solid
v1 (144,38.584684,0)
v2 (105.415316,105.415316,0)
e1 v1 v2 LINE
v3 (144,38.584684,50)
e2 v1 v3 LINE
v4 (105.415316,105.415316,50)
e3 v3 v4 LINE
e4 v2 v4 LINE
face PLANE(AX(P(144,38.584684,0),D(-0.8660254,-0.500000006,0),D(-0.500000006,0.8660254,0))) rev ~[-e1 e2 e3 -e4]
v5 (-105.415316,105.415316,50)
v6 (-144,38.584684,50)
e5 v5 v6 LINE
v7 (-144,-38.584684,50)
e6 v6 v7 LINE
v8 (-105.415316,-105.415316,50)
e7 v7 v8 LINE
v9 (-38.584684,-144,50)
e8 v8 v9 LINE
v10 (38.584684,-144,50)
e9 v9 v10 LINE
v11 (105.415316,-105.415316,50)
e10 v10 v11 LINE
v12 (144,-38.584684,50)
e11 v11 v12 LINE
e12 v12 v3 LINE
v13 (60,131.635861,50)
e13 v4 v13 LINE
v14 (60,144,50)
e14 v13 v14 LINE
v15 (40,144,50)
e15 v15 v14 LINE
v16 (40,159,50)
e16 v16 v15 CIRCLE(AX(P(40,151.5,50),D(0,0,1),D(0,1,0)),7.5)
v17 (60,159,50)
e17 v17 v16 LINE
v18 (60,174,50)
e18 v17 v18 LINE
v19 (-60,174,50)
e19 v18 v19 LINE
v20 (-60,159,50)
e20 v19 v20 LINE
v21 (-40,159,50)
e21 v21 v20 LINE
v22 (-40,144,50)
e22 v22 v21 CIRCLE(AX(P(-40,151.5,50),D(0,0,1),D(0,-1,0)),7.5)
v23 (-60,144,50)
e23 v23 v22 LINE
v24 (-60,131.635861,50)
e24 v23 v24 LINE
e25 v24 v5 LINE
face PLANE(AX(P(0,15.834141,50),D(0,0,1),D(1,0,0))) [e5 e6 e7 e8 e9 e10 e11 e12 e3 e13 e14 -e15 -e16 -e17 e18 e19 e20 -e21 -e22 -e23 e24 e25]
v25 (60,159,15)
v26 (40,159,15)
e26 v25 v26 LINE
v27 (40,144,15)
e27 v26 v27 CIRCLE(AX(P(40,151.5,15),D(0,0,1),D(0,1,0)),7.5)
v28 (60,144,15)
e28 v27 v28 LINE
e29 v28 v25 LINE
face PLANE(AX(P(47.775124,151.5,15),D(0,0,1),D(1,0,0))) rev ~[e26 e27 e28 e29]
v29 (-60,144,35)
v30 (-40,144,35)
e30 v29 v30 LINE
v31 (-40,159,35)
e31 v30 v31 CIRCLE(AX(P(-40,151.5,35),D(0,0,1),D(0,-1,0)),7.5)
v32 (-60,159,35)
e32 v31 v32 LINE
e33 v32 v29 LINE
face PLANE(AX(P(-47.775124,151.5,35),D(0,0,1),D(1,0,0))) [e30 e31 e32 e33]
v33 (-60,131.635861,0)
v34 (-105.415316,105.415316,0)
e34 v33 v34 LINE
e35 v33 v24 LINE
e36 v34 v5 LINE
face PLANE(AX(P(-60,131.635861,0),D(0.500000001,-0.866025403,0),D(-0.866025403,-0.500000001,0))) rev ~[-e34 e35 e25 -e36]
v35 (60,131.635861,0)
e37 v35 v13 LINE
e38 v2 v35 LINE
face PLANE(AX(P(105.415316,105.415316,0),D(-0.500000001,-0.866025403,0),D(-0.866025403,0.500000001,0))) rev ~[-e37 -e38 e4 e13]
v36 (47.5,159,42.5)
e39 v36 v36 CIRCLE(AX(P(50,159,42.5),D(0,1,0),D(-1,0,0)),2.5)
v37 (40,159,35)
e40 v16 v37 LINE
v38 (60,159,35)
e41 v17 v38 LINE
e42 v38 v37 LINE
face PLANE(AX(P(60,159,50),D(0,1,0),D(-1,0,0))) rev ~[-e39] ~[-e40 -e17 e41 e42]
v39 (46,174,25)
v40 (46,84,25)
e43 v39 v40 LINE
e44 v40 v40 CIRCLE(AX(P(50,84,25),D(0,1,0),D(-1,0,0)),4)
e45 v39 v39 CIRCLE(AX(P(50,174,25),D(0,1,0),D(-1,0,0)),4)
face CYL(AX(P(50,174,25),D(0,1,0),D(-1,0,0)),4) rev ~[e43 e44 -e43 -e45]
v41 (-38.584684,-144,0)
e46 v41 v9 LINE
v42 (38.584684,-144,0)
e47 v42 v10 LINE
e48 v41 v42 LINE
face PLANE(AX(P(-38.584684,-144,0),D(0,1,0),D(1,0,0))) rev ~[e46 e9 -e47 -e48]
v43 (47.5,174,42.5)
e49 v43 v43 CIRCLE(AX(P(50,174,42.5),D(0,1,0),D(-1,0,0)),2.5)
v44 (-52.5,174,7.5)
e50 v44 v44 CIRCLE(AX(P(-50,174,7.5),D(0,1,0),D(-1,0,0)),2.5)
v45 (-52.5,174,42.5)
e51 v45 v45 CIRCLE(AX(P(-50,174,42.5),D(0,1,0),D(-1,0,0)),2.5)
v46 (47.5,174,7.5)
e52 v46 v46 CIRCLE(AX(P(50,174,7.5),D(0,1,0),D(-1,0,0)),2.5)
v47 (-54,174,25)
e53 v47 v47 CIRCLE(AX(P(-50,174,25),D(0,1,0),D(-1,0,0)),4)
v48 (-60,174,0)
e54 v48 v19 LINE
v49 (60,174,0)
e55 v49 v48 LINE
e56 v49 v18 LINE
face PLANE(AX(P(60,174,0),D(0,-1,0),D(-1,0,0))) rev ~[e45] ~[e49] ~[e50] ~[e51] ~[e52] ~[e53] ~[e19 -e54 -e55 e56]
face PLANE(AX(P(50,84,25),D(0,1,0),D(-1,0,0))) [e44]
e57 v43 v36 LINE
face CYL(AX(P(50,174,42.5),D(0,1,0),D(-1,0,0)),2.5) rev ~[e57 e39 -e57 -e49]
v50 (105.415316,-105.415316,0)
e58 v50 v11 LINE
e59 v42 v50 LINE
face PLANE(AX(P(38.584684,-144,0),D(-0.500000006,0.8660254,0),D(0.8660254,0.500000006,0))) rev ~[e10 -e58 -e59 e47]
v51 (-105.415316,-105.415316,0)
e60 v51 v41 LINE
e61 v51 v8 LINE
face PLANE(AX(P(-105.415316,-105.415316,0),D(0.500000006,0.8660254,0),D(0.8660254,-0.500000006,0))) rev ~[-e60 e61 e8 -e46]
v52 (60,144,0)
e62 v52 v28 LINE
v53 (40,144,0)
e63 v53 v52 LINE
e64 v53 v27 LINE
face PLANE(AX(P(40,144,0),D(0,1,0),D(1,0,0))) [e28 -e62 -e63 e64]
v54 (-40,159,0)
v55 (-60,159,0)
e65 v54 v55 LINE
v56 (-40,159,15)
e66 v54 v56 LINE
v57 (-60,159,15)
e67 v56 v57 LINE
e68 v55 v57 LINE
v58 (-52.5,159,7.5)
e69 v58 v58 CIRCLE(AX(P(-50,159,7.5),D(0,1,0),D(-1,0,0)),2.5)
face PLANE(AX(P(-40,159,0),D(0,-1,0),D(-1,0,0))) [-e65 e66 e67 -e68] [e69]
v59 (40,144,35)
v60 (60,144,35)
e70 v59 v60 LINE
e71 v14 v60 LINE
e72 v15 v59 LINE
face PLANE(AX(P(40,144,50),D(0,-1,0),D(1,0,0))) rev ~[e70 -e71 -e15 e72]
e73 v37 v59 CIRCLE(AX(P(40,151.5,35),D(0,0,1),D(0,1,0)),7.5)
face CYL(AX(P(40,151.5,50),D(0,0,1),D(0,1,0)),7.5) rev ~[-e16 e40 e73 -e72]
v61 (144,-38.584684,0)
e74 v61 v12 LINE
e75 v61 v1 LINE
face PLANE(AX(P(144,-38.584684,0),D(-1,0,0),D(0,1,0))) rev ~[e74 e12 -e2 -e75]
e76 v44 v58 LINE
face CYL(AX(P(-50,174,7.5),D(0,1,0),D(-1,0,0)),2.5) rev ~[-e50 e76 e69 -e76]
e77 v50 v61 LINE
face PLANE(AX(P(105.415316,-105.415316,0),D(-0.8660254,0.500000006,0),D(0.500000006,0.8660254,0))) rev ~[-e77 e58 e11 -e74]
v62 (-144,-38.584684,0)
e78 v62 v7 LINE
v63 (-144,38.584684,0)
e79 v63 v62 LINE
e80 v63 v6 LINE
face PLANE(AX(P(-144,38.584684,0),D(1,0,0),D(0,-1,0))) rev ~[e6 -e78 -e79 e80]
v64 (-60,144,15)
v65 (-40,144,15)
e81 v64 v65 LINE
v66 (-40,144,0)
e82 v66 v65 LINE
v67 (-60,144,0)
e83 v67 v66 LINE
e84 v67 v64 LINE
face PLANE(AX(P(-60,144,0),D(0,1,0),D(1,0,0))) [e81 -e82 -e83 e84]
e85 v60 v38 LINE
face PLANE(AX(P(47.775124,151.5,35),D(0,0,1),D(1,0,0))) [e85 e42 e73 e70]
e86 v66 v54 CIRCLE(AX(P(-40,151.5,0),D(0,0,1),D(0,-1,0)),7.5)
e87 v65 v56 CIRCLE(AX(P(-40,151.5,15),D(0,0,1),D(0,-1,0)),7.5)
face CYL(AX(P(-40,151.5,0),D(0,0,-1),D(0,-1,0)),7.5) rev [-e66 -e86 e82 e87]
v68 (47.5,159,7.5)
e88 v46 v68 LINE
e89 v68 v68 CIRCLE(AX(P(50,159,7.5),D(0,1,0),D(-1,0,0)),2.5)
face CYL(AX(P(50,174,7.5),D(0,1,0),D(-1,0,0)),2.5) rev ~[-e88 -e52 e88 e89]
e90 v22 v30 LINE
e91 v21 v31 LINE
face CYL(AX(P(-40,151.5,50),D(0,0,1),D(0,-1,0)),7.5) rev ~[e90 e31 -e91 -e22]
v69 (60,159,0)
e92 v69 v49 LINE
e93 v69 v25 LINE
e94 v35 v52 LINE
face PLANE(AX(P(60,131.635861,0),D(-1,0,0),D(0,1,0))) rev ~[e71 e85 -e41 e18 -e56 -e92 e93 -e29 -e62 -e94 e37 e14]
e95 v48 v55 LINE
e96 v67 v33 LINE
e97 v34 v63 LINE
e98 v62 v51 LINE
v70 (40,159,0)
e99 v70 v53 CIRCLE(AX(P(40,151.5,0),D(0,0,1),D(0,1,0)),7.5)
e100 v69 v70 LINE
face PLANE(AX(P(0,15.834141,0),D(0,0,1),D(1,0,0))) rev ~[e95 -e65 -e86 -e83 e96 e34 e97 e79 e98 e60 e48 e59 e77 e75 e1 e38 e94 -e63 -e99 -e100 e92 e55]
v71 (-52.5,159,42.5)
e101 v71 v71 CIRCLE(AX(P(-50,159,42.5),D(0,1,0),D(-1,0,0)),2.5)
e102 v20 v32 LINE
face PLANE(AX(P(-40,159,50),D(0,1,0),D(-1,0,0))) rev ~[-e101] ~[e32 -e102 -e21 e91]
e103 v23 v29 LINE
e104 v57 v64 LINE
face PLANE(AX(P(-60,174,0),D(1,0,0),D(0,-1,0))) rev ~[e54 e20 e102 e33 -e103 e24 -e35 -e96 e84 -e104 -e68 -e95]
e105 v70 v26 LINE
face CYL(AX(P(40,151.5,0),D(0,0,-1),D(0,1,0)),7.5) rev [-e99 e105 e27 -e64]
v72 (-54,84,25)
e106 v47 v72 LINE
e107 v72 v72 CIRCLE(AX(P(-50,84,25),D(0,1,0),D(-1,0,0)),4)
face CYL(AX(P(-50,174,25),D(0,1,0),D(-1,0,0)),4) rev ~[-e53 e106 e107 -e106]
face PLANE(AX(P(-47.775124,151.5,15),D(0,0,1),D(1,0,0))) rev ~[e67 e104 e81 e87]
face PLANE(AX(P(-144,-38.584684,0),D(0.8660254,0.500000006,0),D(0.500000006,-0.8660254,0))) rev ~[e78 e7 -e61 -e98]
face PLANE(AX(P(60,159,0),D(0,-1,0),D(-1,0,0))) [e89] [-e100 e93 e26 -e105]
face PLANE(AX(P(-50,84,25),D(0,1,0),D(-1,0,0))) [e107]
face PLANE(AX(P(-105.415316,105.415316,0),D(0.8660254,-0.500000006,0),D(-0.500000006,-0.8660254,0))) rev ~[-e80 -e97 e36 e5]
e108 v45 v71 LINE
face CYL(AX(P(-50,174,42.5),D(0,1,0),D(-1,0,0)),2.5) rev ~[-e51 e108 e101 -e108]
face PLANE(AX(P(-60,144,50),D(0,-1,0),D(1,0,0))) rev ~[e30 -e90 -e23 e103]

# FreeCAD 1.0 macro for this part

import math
import FreeCAD as App
import Part
import Sketcher

V = App.Vector
Q = App.Units.Quantity

doc = App.newDocument("Part")
params = doc.addObject("Spreadsheet::Sheet", "Params")
for row, (alias, value) in enumerate([
    ("sketch1_width", "120 mm"),
    ("pad1_length", "50 mm"),
    ("sketch2_radius", "7.5 mm"),
    ("sketch2_width", "20 mm"),
    ("pocket1_length", "15 mm"),
    ("sketch3_radius", "7.5 mm"),
    ("sketch3_width", "20 mm"),
    ("pocket2_length", "15 mm"),
    ("sketch4_diameter", "8 mm"),
    ("pocket3_length", "90 mm"),
    ("sketch5_diameter", "5 mm"),
    ("pocket4_length", "15 mm"),
], start=1):
    params.set(f"A{row}", alias)
    params.set(f"B{row}", "=" + value)
    params.setAlias(f"B{row}", alias)

body = doc.addObject("PartDesign::Body", "Body")

# Sketch on XY plane
sketch1 = body.newObject("Sketcher::SketchObject", "Sketch")
sketch1.AttachmentSupport = (doc.getObject("XY_Plane"), [""])
sketch1.MapMode = "FlatFace"
sketch1.addGeometry([
    Part.LineSegment(V(144, 39, 0), V(105, 105, 0)),  # 0
    Part.LineSegment(V(105, 105, 0), V(60, 132, 0)),  # 1
    Part.LineSegment(V(60, 132, 0), V(60, 174, 0)),  # 2
    Part.LineSegment(V(60, 174, 0), V(-60, 174, 0)),  # 3
    Part.LineSegment(V(-60, 174, 0), V(-60, 132, 0)),  # 4
    Part.LineSegment(V(-60, 132, 0), V(-105, 105, 0)),  # 5
    Part.LineSegment(V(-105, 105, 0), V(-144, 39, 0)),  # 6
    Part.LineSegment(V(-144, 39, 0), V(-144, -39, 0)),  # 7
    Part.LineSegment(V(-144, -39, 0), V(-105, -105, 0)),  # 8
    Part.LineSegment(V(-105, -105, 0), V(-39, -144, 0)),  # 9
    Part.LineSegment(V(-39, -144, 0), V(39, -144, 0)),  # 10
    Part.LineSegment(V(39, -144, 0), V(105, -105, 0)),  # 11
    Part.LineSegment(V(105, -105, 0), V(144, -39, 0)),  # 12
    Part.LineSegment(V(144, -39, 0), V(144, 39, 0)),  # 13
], False)
sketch1.addConstraint([
    Sketcher.Constraint("Coincident", 0, 2, 1, 1),
    Sketcher.Constraint("Coincident", 1, 2, 2, 1),
    Sketcher.Constraint("Coincident", 2, 2, 3, 1),
    Sketcher.Constraint("Coincident", 3, 2, 4, 1),
    Sketcher.Constraint("Coincident", 4, 2, 5, 1),
    Sketcher.Constraint("Coincident", 5, 2, 6, 1),
    Sketcher.Constraint("Coincident", 6, 2, 7, 1),
    Sketcher.Constraint("Coincident", 7, 2, 8, 1),
    Sketcher.Constraint("Coincident", 8, 2, 9, 1),
    Sketcher.Constraint("Coincident", 9, 2, 10, 1),
    Sketcher.Constraint("Coincident", 10, 2, 11, 1),
    Sketcher.Constraint("Coincident", 11, 2, 12, 1),
    Sketcher.Constraint("Coincident", 12, 2, 13, 1),
    Sketcher.Constraint("Coincident", 13, 2, 0, 1),
    Sketcher.Constraint("Vertical", 2),
    Sketcher.Constraint("Horizontal", 3),
    Sketcher.Constraint("Vertical", 4),
    Sketcher.Constraint("Vertical", 7),
    Sketcher.Constraint("Horizontal", 10),
    Sketcher.Constraint("Vertical", 13),
    Sketcher.Constraint("Symmetric", 0, 2, 8, 2, -1, 1),
    Sketcher.Constraint("Symmetric", 5, 2, 11, 2, -1, 1),
    Sketcher.Constraint("Symmetric", 6, 2, 12, 2, -1, 1),
    Sketcher.Constraint("Symmetric", 1, 2, 4, 2, -2),
    Sketcher.Constraint("Symmetric", 0, 2, 5, 2, -2),
    Sketcher.Constraint("Perpendicular", 0, 5),
    Sketcher.Constraint("Perpendicular", 1, 6),
    Sketcher.Constraint("Perpendicular", 5, 8),
    Sketcher.Constraint("Perpendicular", 6, 9),
    Sketcher.Constraint("Perpendicular", 8, 11),
    Sketcher.Constraint("Equal", 10, 7),
    Sketcher.Constraint("Equal", 8, 9),
    Sketcher.Constraint("DistanceX", 3, 2, 3, 1, Q("120 mm")),
    Sketcher.Constraint("Angle", 0, Q("120 deg")),
    Sketcher.Constraint("DistanceY", -1, 1, 2, 2, Q("174 mm")),
    Sketcher.Constraint("DistanceX", 6, 2, -1, 1, Q("144 mm")),
    Sketcher.Constraint("DistanceY", 7, 2, 5, 2, Q("144 mm")),
])
sketch1.setExpression("Constraints[32]", "Params.sketch1_width")
pad1 = body.newObject("PartDesign::Pad", "Pad")
pad1.Profile = sketch1
pad1.setExpression("Length", "Params.pad1_length")

# Sketch on XY plane
sketch2 = body.newObject("Sketcher::SketchObject", "Sketch001")
sketch2.AttachmentSupport = (doc.getObject("XY_Plane"), [""])
sketch2.MapMode = "FlatFace"
sketch2.AttachmentOffset = App.Placement(V(0, 0, 50), App.Rotation())
sketch2.addGeometry([
    Part.LineSegment(V(-40, 159, 0), V(-60, 159, 0)),  # 0
    Part.LineSegment(V(-60, 159, 0), V(-60, 144, 0)),  # 1
    Part.LineSegment(V(-60, 144, 0), V(-40, 144, 0)),  # 2
    Part.ArcOfCircle(Part.Circle(V(-40, 152, 0), V(0, 0, 1), 8), math.radians(-90), math.radians(90)),  # 3
    Part.LineSegment(V(60, 144, 0), V(60, 159, 0)),  # 4
    Part.LineSegment(V(60, 159, 0), V(40, 159, 0)),  # 5
    Part.ArcOfCircle(Part.Circle(V(40, 152, 0), V(0, 0, 1), 8), math.radians(90), math.radians(270)),  # 6
    Part.LineSegment(V(40, 144, 0), V(60, 144, 0)),  # 7
], False)
sketch2.addConstraint([
    Sketcher.Constraint("Coincident", 0, 2, 1, 1),
    Sketcher.Constraint("Coincident", 1, 2, 2, 1),
    Sketcher.Constraint("Tangent", 2, 2, 3, 1),
    Sketcher.Constraint("Tangent", 3, 2, 0, 1),
    Sketcher.Constraint("Coincident", 4, 2, 5, 1),
    Sketcher.Constraint("Tangent", 5, 2, 6, 1),
    Sketcher.Constraint("Tangent", 6, 2, 7, 1),
    Sketcher.Constraint("Coincident", 7, 2, 4, 1),
    Sketcher.Constraint("Horizontal", 0),
    Sketcher.Constraint("Vertical", 1),
    Sketcher.Constraint("Horizontal", 2),
    Sketcher.Constraint("Vertical", 4),
    Sketcher.Constraint("Horizontal", 5),
    Sketcher.Constraint("Horizontal", 7),
    Sketcher.Constraint("Equal", 3, 6),
    Sketcher.Constraint("Symmetric", 3, 3, 6, 3, -2),
    Sketcher.Constraint("Equal", 2, 5),
    Sketcher.Constraint("Radius", 3, Q("7.5 mm")),
    Sketcher.Constraint("DistanceX", 0, 2, 0, 1, Q("20 mm")),
    Sketcher.Constraint("DistanceX", 3, 3, -1, 1, Q("40 mm")),
    Sketcher.Constraint("DistanceY", -1, 1, 0, 2, Q("159 mm")),
])
sketch2.setExpression("Constraints[17]", "Params.sketch2_radius")
sketch2.setExpression("Constraints[18]", "Params.sketch2_width")
pocket1 = body.newObject("PartDesign::Pocket", "Pocket")
pocket1.Profile = sketch2
pocket1.setExpression("Length", "Params.pocket1_length")

# Sketch on XY plane
sketch3 = body.newObject("Sketcher::SketchObject", "Sketch002")
sketch3.AttachmentSupport = (doc.getObject("XY_Plane"), [""])
sketch3.MapMode = "FlatFace"
sketch3.addGeometry([
    Part.LineSegment(V(60, 144, 0), V(60, 159, 0)),  # 0
    Part.LineSegment(V(60, 159, 0), V(40, 159, 0)),  # 1
    Part.ArcOfCircle(Part.Circle(V(40, 152, 0), V(0, 0, 1), 8), math.radians(90), math.radians(270)),  # 2
    Part.LineSegment(V(40, 144, 0), V(60, 144, 0)),  # 3
    Part.LineSegment(V(-40, 159, 0), V(-60, 159, 0)),  # 4
    Part.LineSegment(V(-60, 159, 0), V(-60, 144, 0)),  # 5
    Part.LineSegment(V(-60, 144, 0), V(-40, 144, 0)),  # 6
    Part.ArcOfCircle(Part.Circle(V(-40, 152, 0), V(0, 0, 1), 8), math.radians(-90), math.radians(90)),  # 7
], False)
sketch3.addConstraint([
    Sketcher.Constraint("Coincident", 0, 2, 1, 1),
    Sketcher.Constraint("Tangent", 1, 2, 2, 1),
    Sketcher.Constraint("Tangent", 2, 2, 3, 1),
    Sketcher.Constraint("Coincident", 3, 2, 0, 1),
    Sketcher.Constraint("Coincident", 4, 2, 5, 1),
    Sketcher.Constraint("Coincident", 5, 2, 6, 1),
    Sketcher.Constraint("Tangent", 6, 2, 7, 1),
    Sketcher.Constraint("Tangent", 7, 2, 4, 1),
    Sketcher.Constraint("Vertical", 0),
    Sketcher.Constraint("Horizontal", 1),
    Sketcher.Constraint("Horizontal", 3),
    Sketcher.Constraint("Horizontal", 4),
    Sketcher.Constraint("Vertical", 5),
    Sketcher.Constraint("Horizontal", 6),
    Sketcher.Constraint("Equal", 2, 7),
    Sketcher.Constraint("Symmetric", 2, 3, 7, 3, -2),
    Sketcher.Constraint("Equal", 3, 4),
    Sketcher.Constraint("Radius", 2, Q("7.5 mm")),
    Sketcher.Constraint("DistanceX", 1, 2, 1, 1, Q("20 mm")),
    Sketcher.Constraint("DistanceX", -1, 1, 2, 3, Q("40 mm")),
    Sketcher.Constraint("DistanceY", -1, 1, 0, 2, Q("159 mm")),
])
sketch3.setExpression("Constraints[17]", "Params.sketch3_radius")
sketch3.setExpression("Constraints[18]", "Params.sketch3_width")
pocket2 = body.newObject("PartDesign::Pocket", "Pocket001")
pocket2.Profile = sketch3
pocket2.setExpression("Length", "Params.pocket2_length")
pocket2.Reversed = True

# Sketch on XZ plane
sketch4 = body.newObject("Sketcher::SketchObject", "Sketch003")
sketch4.AttachmentSupport = (doc.getObject("XZ_Plane"), [""])
sketch4.MapMode = "FlatFace"
sketch4.AttachmentOffset = App.Placement(V(0, 0, -174), App.Rotation())
sketch4.addGeometry([
    Part.Circle(V(50, 25, 0), V(0, 0, 1), 4),
    Part.Circle(V(-50, 25, 0), V(0, 0, 1), 4),
], False)
sketch4.addConstraint([
    Sketcher.Constraint("Equal", 0, 1),
    Sketcher.Constraint("Symmetric", 0, 3, 1, 3, -2),
    Sketcher.Constraint("Diameter", 0, Q("8 mm")),
    Sketcher.Constraint("DistanceX", -1, 1, 0, 3, Q("50 mm")),
    Sketcher.Constraint("DistanceY", -1, 1, 0, 3, Q("25 mm")),
])
sketch4.setExpression("Constraints[2]", "Params.sketch4_diameter")
pocket3 = body.newObject("PartDesign::Pocket", "Pocket002")
pocket3.Profile = sketch4
pocket3.setExpression("Length", "Params.pocket3_length")
pocket3.Reversed = True

# Sketch on XZ plane
sketch5 = body.newObject("Sketcher::SketchObject", "Sketch004")
sketch5.AttachmentSupport = (doc.getObject("XZ_Plane"), [""])
sketch5.MapMode = "FlatFace"
sketch5.AttachmentOffset = App.Placement(V(0, 0, -174), App.Rotation())
sketch5.addGeometry([
    Part.Circle(V(50, 42.5, 0), V(0, 0, 1), 2.5),
    Part.Circle(V(50, 7.5, 0), V(0, 0, 1), 2.5),
    Part.Circle(V(-50, 7.5, 0), V(0, 0, 1), 2.5),
    Part.Circle(V(-50, 42.5, 0), V(0, 0, 1), 2.5),
], False)
sketch5.addConstraint([
    Sketcher.Constraint("Equal", 0, 1),
    Sketcher.Constraint("Equal", 1, 2),
    Sketcher.Constraint("Equal", 2, 3),
    Sketcher.Constraint("Symmetric", 1, 3, 2, 3, -2),
    Sketcher.Constraint("Symmetric", 0, 3, 3, 3, -2),
    Sketcher.Constraint("Vertical", 0, 3, 1, 3),
    Sketcher.Constraint("Diameter", 0, Q("5 mm")),
    Sketcher.Constraint("DistanceX", -1, 1, 0, 3, Q("50 mm")),
    Sketcher.Constraint("DistanceY", 1, 3, 0, 3, Q("35 mm")),
    Sketcher.Constraint("DistanceY", -1, 1, 0, 3, Q("42.5 mm")),
])
sketch5.setExpression("Constraints[6]", "Params.sketch5_diameter")
pocket4 = body.newObject("PartDesign::Pocket", "Pocket003")
pocket4.Profile = sketch5
pocket4.setExpression("Length", "Params.pocket4_length")
pocket4.Reversed = True

doc.recompute()
